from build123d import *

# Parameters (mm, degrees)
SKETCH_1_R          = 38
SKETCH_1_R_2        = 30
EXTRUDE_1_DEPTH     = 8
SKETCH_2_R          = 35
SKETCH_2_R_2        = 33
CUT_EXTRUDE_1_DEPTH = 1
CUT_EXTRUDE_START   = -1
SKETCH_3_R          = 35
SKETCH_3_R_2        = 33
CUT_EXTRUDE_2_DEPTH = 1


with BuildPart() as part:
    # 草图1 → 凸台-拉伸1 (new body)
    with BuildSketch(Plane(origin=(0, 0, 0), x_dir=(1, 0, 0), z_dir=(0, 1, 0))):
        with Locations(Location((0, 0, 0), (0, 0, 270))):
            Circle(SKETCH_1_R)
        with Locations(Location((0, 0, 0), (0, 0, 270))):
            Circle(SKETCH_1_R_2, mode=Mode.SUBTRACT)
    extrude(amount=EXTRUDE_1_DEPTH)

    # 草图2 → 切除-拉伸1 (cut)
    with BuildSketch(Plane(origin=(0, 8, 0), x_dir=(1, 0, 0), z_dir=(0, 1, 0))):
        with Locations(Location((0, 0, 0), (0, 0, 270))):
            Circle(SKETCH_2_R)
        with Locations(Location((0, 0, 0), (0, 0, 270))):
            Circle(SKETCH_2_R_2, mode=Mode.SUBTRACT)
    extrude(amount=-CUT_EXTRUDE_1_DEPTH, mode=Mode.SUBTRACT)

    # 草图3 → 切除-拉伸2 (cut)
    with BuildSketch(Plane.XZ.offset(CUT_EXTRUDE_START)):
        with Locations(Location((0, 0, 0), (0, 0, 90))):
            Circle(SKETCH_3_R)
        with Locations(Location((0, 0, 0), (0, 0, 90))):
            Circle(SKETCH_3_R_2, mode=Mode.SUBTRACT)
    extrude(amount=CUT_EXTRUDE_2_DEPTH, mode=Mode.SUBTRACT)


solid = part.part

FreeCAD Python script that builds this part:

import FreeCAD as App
import Part
import Sketcher
from FreeCAD import Vector

doc = App.newDocument("Part")
params = doc.addObject("Spreadsheet::Sheet", "Params")
for row, (alias, value) in enumerate([
    ("sketch1_diameter", "76 mm"),
    ("sketch1_diameter2", "60 mm"),
    ("pad1_length", "8 mm"),
    ("sketch2_diameter", "70 mm"),
    ("sketch2_diameter2", "66 mm"),
    ("pocket1_length", "1 mm"),
    ("sketch3_diameter", "70 mm"),
    ("sketch3_diameter2", "66 mm"),
    ("pocket2_length", "1 mm"),
], start=1):
    params.set(f"A{row}", alias)
    params.set(f"B{row}", "=" + value)
    params.setAlias(f"B{row}", alias)

body = doc.addObject("PartDesign::Body", "Body")

sketch1 = body.newObject("Sketcher::SketchObject", "Sketch")
sketch1.AttachmentSupport = (doc.getObject("XZ_Plane"), [""])
sketch1.MapMode = "FlatFace"
sketch1.addGeometry(Part.Circle(Vector(0, 0, 0), Vector(0, 0, 1), 38), False)
sketch1.addGeometry(Part.Circle(Vector(0, 0, 0), Vector(0, 0, 1), 30), False)
sketch1.addConstraint(Sketcher.Constraint("Coincident", 0, 3, -1, 1))
sketch1.addConstraint(Sketcher.Constraint("Coincident", 1, 3, -1, 1))
sketch1.addConstraint(Sketcher.Constraint("Diameter", 0, 76.0))
sketch1.addConstraint(Sketcher.Constraint("Diameter", 1, 60.0))
sketch1.setExpression("Constraints[2]", "Params.sketch1_diameter")
sketch1.setExpression("Constraints[3]", "Params.sketch1_diameter2")
pad1 = body.newObject("PartDesign::Pad", "Pad")
pad1.Profile = sketch1
pad1.setExpression("Length", "Params.pad1_length")
pad1.Reversed = True

sketch2 = body.newObject("Sketcher::SketchObject", "Sketch001")
sketch2.AttachmentSupport = (doc.getObject("XZ_Plane"), [""])
sketch2.MapMode = "FlatFace"
sketch2.AttachmentOffset = App.Placement(Vector(0, 0, -8), App.Rotation())
sketch2.addGeometry(Part.Circle(Vector(0, 0, 0), Vector(0, 0, 1), 35), False)
sketch2.addGeometry(Part.Circle(Vector(0, 0, 0), Vector(0, 0, 1), 33), False)
sketch2.addConstraint(Sketcher.Constraint("Coincident", 0, 3, -1, 1))
sketch2.addConstraint(Sketcher.Constraint("Coincident", 1, 3, -1, 1))
sketch2.addConstraint(Sketcher.Constraint("Diameter", 0, 70.0))
sketch2.addConstraint(Sketcher.Constraint("Diameter", 1, 66.0))
sketch2.setExpression("Constraints[2]", "Params.sketch2_diameter")
sketch2.setExpression("Constraints[3]", "Params.sketch2_diameter2")
pocket1 = body.newObject("PartDesign::Pocket", "Pocket")
pocket1.Profile = sketch2
pocket1.setExpression("Length", "Params.pocket1_length")
pocket1.Reversed = True

sketch3 = body.newObject("Sketcher::SketchObject", "Sketch002")
sketch3.AttachmentSupport = (doc.getObject("XZ_Plane"), [""])
sketch3.MapMode = "FlatFace"
sketch3.AttachmentOffset = App.Placement(Vector(0, 0, -1), App.Rotation())
sketch3.addGeometry(Part.Circle(Vector(0, 0, 0), Vector(0, 0, 1), 35), False)
sketch3.addGeometry(Part.Circle(Vector(0, 0, 0), Vector(0, 0, 1), 33), False)
sketch3.addConstraint(Sketcher.Constraint("Coincident", 0, 3, -1, 1))
sketch3.addConstraint(Sketcher.Constraint("Coincident", 1, 3, -1, 1))
sketch3.addConstraint(Sketcher.Constraint("Diameter", 0, 70.0))
sketch3.addConstraint(Sketcher.Constraint("Diameter", 1, 66.0))
sketch3.setExpression("Constraints[2]", "Params.sketch3_diameter")
sketch3.setExpression("Constraints[3]", "Params.sketch3_diameter2")
pocket2 = body.newObject("PartDesign::Pocket", "Pocket001")
pocket2.Profile = sketch3
pocket2.setExpression("Length", "Params.pocket2_length")
pocket2.Reversed = True

doc.recompute()
